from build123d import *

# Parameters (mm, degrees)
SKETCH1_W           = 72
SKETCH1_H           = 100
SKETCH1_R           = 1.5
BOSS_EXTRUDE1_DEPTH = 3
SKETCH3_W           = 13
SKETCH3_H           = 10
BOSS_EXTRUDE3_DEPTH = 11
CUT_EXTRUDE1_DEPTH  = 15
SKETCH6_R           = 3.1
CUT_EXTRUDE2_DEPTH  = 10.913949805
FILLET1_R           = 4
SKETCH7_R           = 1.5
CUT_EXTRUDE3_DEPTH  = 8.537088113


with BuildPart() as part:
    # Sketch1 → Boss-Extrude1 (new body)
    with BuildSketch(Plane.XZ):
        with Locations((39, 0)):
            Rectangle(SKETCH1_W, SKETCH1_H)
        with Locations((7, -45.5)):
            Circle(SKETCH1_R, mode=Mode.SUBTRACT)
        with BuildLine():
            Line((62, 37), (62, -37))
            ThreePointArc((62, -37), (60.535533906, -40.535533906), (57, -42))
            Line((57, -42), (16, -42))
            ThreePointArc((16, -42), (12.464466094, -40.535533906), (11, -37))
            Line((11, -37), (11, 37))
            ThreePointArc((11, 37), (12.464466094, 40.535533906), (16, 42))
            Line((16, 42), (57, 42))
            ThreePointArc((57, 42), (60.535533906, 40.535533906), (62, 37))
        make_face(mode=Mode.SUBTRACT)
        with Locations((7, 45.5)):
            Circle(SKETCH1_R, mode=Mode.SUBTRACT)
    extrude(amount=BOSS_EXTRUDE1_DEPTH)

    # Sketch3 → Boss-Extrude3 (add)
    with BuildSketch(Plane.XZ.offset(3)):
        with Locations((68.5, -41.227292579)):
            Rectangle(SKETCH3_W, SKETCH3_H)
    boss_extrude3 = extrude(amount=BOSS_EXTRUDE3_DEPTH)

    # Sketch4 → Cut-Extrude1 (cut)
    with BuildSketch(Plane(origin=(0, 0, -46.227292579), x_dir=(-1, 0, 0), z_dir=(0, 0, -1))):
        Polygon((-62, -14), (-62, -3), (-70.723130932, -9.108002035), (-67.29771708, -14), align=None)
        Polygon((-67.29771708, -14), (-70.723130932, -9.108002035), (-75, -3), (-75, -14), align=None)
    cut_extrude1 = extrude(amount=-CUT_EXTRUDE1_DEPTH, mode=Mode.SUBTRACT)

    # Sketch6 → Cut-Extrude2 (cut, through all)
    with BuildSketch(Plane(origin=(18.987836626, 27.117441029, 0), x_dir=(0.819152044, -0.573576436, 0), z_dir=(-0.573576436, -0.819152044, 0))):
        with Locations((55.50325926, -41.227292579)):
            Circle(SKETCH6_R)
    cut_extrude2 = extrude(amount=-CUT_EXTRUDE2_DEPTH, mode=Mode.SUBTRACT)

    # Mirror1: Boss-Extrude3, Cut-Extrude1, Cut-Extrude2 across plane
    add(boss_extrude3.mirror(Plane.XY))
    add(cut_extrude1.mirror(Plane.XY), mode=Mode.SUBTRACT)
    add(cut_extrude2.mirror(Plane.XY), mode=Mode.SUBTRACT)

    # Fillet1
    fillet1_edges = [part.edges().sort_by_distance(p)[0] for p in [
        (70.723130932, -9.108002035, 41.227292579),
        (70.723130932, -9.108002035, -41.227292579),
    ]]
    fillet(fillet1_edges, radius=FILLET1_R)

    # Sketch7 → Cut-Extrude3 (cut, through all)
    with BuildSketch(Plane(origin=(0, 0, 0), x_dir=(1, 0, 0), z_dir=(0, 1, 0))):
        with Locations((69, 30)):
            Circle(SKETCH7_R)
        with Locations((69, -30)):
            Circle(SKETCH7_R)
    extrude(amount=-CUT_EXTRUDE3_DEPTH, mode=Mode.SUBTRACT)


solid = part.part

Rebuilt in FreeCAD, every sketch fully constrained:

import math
import FreeCAD as App
import Part
import Sketcher

V = App.Vector
Q = App.Units.Quantity


def edges_at(feature, points):
    """Names of the edges that pass closest to the given points."""
    edges = feature.Shape.Edges
    near = lambda p: min(range(len(edges)), key=lambda i: edges[i].distToShape(Part.Vertex(*p))[0])
    return sorted({f"Edge{near(p) + 1}" for p in points})


def add_polygon(sketch, points):
    """Adds a closed chain of lines whose ends are joined by coincident constraints."""
    first, n = sketch.GeometryCount, len(points)
    for a, b in zip(points, points[1:] + points[:1]):
        sketch.addGeometry(Part.LineSegment(App.Vector(*a, 0), App.Vector(*b, 0)), False)
    for i in range(n):
        sketch.addConstraint(Sketcher.Constraint("Coincident", first + i, 2, first + (i + 1) % n, 1))

doc = App.newDocument("Part")
body = doc.addObject("PartDesign::Body", "Body")

sketch1 = body.newObject("Sketcher::SketchObject", "Sketch")
sketch1.AttachmentSupport = (doc.getObject("XZ_Plane"), [""])
sketch1.MapMode = "FlatFace"
add_polygon(sketch1, [(3, 50), (3, -50), (75, -50), (75, 50)])
sketch1.addGeometry(Part.Circle(V(7, -45.5, 0), V(0, 0, 1), 1.5), False)
sketch1.addGeometry(Part.Circle(V(7, 45.5, 0), V(0, 0, 1), 1.5), False)
sketch1.addGeometry(Part.ArcOfCircle(Part.Circle(V(57, 37, 0), V(0, 0, 1), 5), math.radians(0), math.radians(90)), False)
sketch1.addGeometry(Part.LineSegment(V(62, 37, 0), V(62, -37, 0)), False)
sketch1.addGeometry(Part.ArcOfCircle(Part.Circle(V(57, -37, 0), V(0, 0, 1), 5), math.radians(-90), math.radians(0)), False)
sketch1.addGeometry(Part.LineSegment(V(57, -42, 0), V(16, -42, 0)), False)
sketch1.addGeometry(Part.ArcOfCircle(Part.Circle(V(16, -37, 0), V(0, 0, 1), 5), math.radians(180), math.radians(270)), False)
sketch1.addGeometry(Part.LineSegment(V(11, -37, 0), V(11, 37, 0)), False)
sketch1.addGeometry(Part.ArcOfCircle(Part.Circle(V(16, 37, 0), V(0, 0, 1), 5), math.radians(90), math.radians(180)), False)
sketch1.addGeometry(Part.LineSegment(V(16, 42, 0), V(57, 42, 0)), False)
sketch1.addConstraint([
    Sketcher.Constraint("Tangent", 6, 1, 7, 1),
    Sketcher.Constraint("Tangent", 7, 2, 8, 2),
    Sketcher.Constraint("Tangent", 8, 1, 9, 1),
    Sketcher.Constraint("Tangent", 9, 2, 10, 2),
    Sketcher.Constraint("Tangent", 10, 1, 11, 1),
    Sketcher.Constraint("Tangent", 11, 2, 12, 2),
    Sketcher.Constraint("Tangent", 12, 1, 13, 1),
    Sketcher.Constraint("Tangent", 13, 2, 6, 2),
    Sketcher.Constraint("Vertical", 0),
    Sketcher.Constraint("Horizontal", 1),
    Sketcher.Constraint("Vertical", 2),
    Sketcher.Constraint("Horizontal", 3),
    Sketcher.Constraint("Vertical", 7),
    Sketcher.Constraint("Horizontal", 9),
    Sketcher.Constraint("Vertical", 11),
    Sketcher.Constraint("Horizontal", 13),
    Sketcher.Constraint("Equal", 4, 5),
    Sketcher.Constraint("Equal", 6, 8),
    Sketcher.Constraint("Equal", 8, 10),
    Sketcher.Constraint("Equal", 10, 12),
    Sketcher.Constraint("Symmetric", 4, 3, 5, 3, -1),
    Sketcher.Constraint("Diameter", 4, Q("3 mm")),
    Sketcher.Constraint("Radius", 6, Q("5 mm")),
    Sketcher.Constraint("DistanceX", 1, 1, 1, 2, Q("72 mm")),
    Sketcher.Constraint("DistanceX", 9, 2, 9, 1, Q("41 mm")),
    Sketcher.Constraint("DistanceY", 0, 2, 0, 1, Q("100 mm")),
    Sketcher.Constraint("DistanceY", 7, 2, 7, 1, Q("74 mm")),
    Sketcher.Constraint("DistanceX", -1, 1, 4, 3, Q("7 mm")),
    Sketcher.Constraint("DistanceX", -1, 1, 6, 3, Q("57 mm")),
    Sketcher.Constraint("DistanceY", -1, 1, 6, 3, Q("37 mm")),
    Sketcher.Constraint("DistanceX", -1, 1, 0, 2, Q("3 mm")),
    Sketcher.Constraint("DistanceY", 0, 2, -1, 1, Q("50 mm")),
    Sketcher.Constraint("DistanceY", 4, 3, 5, 3, Q("91 mm")),
])
pad1 = body.newObject("PartDesign::Pad", "Pad")
pad1.Profile = sketch1
pad1.Length = 3

sketch2 = body.newObject("Sketcher::SketchObject", "Sketch001")
sketch2.AttachmentSupport = (doc.getObject("XZ_Plane"), [""])
sketch2.MapMode = "FlatFace"
sketch2.AttachmentOffset = App.Placement(V(0, 0, 3), App.Rotation())
add_polygon(sketch2, [(62, -36), (62, -46), (75, -46), (75, -36)])
sketch2.addConstraint([
    Sketcher.Constraint("Vertical", 0),
    Sketcher.Constraint("Horizontal", 1),
    Sketcher.Constraint("Vertical", 2),
    Sketcher.Constraint("Horizontal", 3),
    Sketcher.Constraint("DistanceX", 1, 1, 1, 2, Q("13 mm")),
    Sketcher.Constraint("DistanceY", 0, 2, 0, 1, Q("10 mm")),
    Sketcher.Constraint("DistanceX", -1, 1, 0, 2, Q("62 mm")),
    Sketcher.Constraint("DistanceY", 0, 2, -1, 1, Q("46.227293 mm")),
])
pad2 = body.newObject("PartDesign::Pad", "Pad001")
pad2.Profile = sketch2
pad2.Length = 11

sketch3 = body.newObject("Sketcher::SketchObject", "Sketch002")
sketch3.AttachmentSupport = (doc.getObject("XY_Plane"), [""])
sketch3.MapMode = "FlatFace"
sketch3.AttachmentOffset = App.Placement(V(0, 0, -46.227293), App.Rotation())
add_polygon(sketch3, [(62, -14), (62, -3), (71, -9), (75, -3), (75, -14)])
sketch3.addConstraint([
    Sketcher.Constraint("Vertical", 0),
    Sketcher.Constraint("Vertical", 3),
    Sketcher.Constraint("Horizontal", 4),
    Sketcher.Constraint("Perpendicular", 1, 2),
    Sketcher.Constraint("Horizontal", 0, 2, 2, 2),
    Sketcher.Constraint("DistanceX", 4, 2, 4, 1, Q("13 mm")),
    Sketcher.Constraint("DistanceY", 0, 1, 0, 2, Q("11 mm")),
    Sketcher.Constraint("Angle", 1, Q("-35 deg")),
    Sketcher.Constraint("DistanceX", -1, 1, 0, 2, Q("62 mm")),
    Sketcher.Constraint("DistanceY", 0, 2, -1, 1, Q("3 mm")),
])
pocket1 = body.newObject("PartDesign::Pocket", "Pocket")
pocket1.Profile = sketch3
pocket1.Length = 15
pocket1.Reversed = True

sketch4 = body.newObject("Sketcher::SketchObject", "Sketch003")
sketch4.Placement = App.Placement(V(18.987837, 27.117441, 0), App.Rotation(V(0.819152044, -0.573576436, 0), V(0, 0, 0.999999999), V(-0.573576436, -0.819152044, 0), "ZXY"))
sketch4.addGeometry(Part.Circle(V(55.5, -41.2, 0), V(0, 0, 1), 3.1), False)
sketch4.addConstraint([
    Sketcher.Constraint("Diameter", 0, Q("6.2 mm")),
    Sketcher.Constraint("DistanceX", -1, 1, 0, 3, Q("55.503259 mm")),
    Sketcher.Constraint("DistanceY", 0, 3, -1, 1, Q("41.227293 mm")),
])
pocket2 = body.newObject("PartDesign::Pocket", "Pocket001")
pocket2.Profile = sketch4
pocket2.Type = "ThroughAll"
doc.recompute()

mirrored = body.newObject("PartDesign::Mirrored", "Mirrored")
mirrored.Originals = [pad2, pocket1, pocket2]
mirrored.MirrorPlane = (doc.getObject("XY_Plane"), [""])
body.Tip = mirrored
doc.recompute()

fillet = body.newObject("PartDesign::Fillet", "Fillet")
fillet.Base = (mirrored, edges_at(mirrored, [(70.723, -9.108, 41.227), (70.723, -9.108, -41.227)]))
fillet.Radius = 4

sketch5 = body.newObject("Sketcher::SketchObject", "Sketch004")
sketch5.AttachmentSupport = (doc.getObject("XZ_Plane"), [""])
sketch5.MapMode = "FlatFace"
sketch5.addGeometry([
    Part.Circle(V(69, -30, 0), V(0, 0, 1), 1.5),
    Part.Circle(V(69, 30, 0), V(0, 0, 1), 1.5),
], False)
sketch5.addConstraint([
    Sketcher.Constraint("Equal", 0, 1),
    Sketcher.Constraint("Symmetric", 0, 3, 1, 3, -1),
    Sketcher.Constraint("Diameter", 0, Q("3 mm")),
    Sketcher.Constraint("DistanceX", -1, 1, 0, 3, Q("69 mm")),
    Sketcher.Constraint("DistanceY", 0, 3, -1, 1, Q("30 mm")),
])
pocket3 = body.newObject("PartDesign::Pocket", "Pocket002")
pocket3.Profile = sketch5
pocket3.Type = "ThroughAll"
pocket3.Reversed = True

doc.recompute()
